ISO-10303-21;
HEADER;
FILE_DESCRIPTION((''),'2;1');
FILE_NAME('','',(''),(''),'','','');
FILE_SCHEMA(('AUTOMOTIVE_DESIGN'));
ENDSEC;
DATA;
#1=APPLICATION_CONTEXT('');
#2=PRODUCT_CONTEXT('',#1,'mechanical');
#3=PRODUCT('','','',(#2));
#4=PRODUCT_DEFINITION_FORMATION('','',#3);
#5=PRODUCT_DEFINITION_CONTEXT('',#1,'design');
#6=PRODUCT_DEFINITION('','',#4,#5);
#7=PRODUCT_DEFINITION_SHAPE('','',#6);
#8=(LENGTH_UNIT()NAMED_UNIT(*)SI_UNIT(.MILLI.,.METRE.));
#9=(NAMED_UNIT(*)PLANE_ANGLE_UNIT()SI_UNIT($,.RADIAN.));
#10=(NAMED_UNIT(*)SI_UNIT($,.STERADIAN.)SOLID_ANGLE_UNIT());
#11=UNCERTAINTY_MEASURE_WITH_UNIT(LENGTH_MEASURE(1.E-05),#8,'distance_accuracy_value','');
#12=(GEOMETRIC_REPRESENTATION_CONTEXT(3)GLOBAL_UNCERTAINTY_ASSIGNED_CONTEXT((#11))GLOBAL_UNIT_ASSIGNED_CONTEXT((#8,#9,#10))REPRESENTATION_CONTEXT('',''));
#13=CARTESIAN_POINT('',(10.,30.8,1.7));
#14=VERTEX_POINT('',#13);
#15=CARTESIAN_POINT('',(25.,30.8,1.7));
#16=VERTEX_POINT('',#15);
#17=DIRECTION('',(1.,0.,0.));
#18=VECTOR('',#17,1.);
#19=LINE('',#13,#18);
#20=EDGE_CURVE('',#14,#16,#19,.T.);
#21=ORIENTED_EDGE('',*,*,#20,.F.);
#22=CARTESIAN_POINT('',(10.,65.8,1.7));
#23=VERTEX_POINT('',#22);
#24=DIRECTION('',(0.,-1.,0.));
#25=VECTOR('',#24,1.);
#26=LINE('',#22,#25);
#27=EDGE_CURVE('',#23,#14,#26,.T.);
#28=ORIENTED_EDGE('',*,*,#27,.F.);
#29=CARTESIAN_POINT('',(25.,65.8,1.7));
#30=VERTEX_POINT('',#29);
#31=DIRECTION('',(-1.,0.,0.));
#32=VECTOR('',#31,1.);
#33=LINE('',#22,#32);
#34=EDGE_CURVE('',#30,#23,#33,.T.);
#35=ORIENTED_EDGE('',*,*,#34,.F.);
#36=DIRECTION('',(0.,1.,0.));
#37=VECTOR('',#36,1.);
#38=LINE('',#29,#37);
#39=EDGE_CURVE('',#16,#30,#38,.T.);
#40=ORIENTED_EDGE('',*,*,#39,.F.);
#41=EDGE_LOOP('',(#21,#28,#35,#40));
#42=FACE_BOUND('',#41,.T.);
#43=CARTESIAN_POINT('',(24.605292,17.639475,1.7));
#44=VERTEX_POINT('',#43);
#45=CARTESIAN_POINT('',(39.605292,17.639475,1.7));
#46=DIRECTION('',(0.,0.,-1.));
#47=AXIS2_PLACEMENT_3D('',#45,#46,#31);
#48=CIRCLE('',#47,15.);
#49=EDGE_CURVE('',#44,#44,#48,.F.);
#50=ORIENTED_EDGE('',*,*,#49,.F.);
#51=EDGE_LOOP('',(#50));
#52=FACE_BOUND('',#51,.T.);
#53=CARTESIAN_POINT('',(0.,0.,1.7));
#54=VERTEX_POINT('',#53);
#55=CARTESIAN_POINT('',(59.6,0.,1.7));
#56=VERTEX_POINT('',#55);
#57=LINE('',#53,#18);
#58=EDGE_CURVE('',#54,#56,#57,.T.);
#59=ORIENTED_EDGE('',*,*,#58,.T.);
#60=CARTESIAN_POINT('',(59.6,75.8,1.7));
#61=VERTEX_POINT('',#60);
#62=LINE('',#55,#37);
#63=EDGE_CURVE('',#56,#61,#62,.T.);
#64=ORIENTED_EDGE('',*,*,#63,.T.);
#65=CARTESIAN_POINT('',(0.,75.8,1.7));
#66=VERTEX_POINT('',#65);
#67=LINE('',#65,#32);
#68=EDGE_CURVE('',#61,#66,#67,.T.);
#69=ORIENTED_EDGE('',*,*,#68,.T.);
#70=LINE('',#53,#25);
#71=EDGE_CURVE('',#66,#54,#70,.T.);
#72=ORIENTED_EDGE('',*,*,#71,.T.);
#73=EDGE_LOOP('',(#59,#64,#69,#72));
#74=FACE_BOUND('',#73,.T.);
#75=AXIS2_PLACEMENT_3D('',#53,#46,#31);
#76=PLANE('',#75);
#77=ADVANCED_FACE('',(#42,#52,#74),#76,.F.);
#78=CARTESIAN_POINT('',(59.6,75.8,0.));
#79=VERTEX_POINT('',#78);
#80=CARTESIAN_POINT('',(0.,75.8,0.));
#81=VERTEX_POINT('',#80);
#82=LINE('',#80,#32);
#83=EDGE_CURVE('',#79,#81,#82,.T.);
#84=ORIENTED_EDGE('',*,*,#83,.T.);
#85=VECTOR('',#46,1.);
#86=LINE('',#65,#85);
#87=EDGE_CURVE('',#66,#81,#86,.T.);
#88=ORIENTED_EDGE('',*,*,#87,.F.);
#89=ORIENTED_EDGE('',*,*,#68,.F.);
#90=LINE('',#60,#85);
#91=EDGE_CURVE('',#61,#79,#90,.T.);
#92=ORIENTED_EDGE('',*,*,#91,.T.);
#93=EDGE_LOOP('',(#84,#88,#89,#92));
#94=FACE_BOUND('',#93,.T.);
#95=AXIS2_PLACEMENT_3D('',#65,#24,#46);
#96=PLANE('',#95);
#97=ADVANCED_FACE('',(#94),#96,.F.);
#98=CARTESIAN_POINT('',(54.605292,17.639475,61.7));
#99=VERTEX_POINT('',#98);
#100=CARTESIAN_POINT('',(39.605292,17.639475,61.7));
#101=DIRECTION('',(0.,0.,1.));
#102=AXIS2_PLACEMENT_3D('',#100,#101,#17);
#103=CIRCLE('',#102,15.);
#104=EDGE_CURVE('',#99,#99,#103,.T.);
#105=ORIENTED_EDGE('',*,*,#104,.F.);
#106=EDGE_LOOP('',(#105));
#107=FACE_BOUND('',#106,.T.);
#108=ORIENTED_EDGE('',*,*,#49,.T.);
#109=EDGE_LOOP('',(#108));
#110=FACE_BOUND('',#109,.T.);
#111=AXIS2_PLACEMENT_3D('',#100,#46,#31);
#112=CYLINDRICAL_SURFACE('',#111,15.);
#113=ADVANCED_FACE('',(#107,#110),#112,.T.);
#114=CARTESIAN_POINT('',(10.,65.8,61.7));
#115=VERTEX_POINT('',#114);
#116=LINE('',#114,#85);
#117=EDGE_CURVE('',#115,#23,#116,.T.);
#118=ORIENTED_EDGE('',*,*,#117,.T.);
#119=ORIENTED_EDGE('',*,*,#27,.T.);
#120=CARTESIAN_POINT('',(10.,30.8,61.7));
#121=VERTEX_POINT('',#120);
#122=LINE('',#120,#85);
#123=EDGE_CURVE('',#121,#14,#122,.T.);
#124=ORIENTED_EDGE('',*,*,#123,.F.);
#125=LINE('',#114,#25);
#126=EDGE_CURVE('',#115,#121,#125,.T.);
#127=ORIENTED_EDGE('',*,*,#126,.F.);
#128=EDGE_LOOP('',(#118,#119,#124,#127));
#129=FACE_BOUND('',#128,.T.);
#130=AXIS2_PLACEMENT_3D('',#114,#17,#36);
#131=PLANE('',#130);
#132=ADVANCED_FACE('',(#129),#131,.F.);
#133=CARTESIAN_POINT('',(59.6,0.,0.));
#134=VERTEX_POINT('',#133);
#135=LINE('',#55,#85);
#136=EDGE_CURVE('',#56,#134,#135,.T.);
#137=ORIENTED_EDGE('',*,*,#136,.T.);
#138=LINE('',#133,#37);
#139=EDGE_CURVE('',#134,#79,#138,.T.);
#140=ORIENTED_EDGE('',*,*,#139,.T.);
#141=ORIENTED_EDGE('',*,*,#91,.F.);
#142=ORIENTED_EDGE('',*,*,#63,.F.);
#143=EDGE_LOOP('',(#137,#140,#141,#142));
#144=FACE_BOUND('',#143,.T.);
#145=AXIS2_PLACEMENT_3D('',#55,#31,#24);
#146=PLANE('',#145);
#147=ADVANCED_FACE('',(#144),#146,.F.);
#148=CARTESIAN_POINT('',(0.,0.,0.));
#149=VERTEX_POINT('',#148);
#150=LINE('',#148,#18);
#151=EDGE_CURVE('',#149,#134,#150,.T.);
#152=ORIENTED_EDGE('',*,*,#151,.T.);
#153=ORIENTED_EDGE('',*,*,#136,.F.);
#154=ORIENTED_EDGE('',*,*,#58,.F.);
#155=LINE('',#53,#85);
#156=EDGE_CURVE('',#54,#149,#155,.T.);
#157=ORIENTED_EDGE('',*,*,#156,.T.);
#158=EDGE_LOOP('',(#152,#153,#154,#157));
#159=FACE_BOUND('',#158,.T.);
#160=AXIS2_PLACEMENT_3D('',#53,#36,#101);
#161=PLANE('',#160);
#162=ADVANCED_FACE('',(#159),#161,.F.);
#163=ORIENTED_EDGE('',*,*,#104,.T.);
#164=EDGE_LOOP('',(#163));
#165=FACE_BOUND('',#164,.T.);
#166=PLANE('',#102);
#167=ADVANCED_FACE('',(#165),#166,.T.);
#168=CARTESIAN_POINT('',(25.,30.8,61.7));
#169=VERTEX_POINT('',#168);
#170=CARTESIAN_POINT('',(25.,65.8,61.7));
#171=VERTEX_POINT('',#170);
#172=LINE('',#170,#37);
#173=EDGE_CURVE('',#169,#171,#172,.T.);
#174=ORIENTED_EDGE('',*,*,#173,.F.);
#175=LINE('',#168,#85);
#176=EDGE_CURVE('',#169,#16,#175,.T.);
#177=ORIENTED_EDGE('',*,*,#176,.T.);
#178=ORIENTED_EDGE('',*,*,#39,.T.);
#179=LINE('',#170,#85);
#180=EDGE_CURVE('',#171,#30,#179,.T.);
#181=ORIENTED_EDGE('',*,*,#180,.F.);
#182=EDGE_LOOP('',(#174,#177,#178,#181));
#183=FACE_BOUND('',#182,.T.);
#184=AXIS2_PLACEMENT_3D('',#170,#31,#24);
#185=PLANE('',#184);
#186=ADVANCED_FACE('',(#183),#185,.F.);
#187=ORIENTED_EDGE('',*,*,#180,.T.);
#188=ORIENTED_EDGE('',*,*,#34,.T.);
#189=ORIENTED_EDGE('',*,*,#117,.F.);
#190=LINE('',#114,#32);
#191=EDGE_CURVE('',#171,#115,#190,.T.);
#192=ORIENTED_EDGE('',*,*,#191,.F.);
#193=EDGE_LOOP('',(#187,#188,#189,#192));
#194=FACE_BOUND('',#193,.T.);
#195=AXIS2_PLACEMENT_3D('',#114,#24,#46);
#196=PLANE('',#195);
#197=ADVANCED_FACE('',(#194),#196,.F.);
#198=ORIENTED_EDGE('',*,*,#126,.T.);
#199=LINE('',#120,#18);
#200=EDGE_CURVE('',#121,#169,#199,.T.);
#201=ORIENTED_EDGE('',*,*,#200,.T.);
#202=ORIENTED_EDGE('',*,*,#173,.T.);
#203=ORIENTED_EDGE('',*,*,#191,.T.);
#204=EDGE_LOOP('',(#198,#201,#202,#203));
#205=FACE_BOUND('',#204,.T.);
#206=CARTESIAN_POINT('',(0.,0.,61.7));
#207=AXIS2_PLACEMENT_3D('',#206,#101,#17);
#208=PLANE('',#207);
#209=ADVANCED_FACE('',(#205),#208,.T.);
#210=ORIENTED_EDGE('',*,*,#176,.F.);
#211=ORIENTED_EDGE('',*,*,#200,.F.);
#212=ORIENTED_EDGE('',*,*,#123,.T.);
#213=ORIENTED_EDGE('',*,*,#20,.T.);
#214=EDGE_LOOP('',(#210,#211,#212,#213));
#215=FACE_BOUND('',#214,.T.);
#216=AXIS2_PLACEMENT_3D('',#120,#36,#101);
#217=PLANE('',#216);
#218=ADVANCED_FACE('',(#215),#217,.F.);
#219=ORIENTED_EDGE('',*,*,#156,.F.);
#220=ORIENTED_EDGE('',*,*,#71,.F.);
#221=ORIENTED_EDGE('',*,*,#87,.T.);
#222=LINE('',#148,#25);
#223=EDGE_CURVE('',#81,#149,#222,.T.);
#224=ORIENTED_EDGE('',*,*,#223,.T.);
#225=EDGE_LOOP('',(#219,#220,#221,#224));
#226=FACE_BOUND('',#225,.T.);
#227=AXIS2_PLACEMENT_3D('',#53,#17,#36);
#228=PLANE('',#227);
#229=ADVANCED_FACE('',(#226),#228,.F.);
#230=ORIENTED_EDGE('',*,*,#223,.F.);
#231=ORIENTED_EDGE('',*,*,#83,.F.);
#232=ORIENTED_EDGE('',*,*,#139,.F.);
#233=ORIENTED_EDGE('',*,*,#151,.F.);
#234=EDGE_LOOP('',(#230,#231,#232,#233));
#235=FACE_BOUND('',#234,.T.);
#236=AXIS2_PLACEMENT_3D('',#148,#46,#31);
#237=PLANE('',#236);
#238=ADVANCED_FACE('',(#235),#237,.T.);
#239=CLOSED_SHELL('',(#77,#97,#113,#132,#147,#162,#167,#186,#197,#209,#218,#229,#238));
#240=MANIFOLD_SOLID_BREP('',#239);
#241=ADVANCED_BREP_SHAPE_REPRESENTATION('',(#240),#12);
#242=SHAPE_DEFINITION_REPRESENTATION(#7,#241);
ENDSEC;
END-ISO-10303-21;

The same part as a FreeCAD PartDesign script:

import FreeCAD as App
import Part
import Sketcher

V = App.Vector
Q = App.Units.Quantity

doc = App.newDocument("Part")
params = doc.addObject("Spreadsheet::Sheet", "Params")
for row, (alias, value) in enumerate([
    ("sketch1_width", "59.6 mm"),
    ("sketch1_height", "75.8 mm"),
    ("pad1_length", "1.7 mm"),
    ("sketch2_width", "15 mm"),
    ("sketch2_height", "35 mm"),
    ("pad2_length", "60 mm"),
    ("sketch3_diameter", "30 mm"),
    ("pad3_length", "60 mm"),
], start=1):
    params.set(f"A{row}", alias)
    params.set(f"B{row}", "=" + value)
    params.setAlias(f"B{row}", alias)

body = doc.addObject("PartDesign::Body", "Body")

sketch1 = body.newObject("Sketcher::SketchObject", "Sketch")
sketch1.AttachmentSupport = (doc.getObject("XY_Plane"), [""])
sketch1.MapMode = "FlatFace"
sketch1.addGeometry(Part.LineSegment(V(0, 76, 0), V(0, 0, 0)), False)
sketch1.addGeometry(Part.LineSegment(V(0, 0, 0), V(60, 0, 0)), False)
sketch1.addGeometry(Part.LineSegment(V(60, 0, 0), V(60, 76, 0)), False)
sketch1.addGeometry(Part.LineSegment(V(60, 76, 0), V(0, 76, 0)), False)
sketch1.addConstraint(Sketcher.Constraint("Coincident", 0, 2, 1, 1))
sketch1.addConstraint(Sketcher.Constraint("Coincident", 1, 2, 2, 1))
sketch1.addConstraint(Sketcher.Constraint("Coincident", 2, 2, 3, 1))
sketch1.addConstraint(Sketcher.Constraint("Coincident", 3, 2, 0, 1))
sketch1.addConstraint(Sketcher.Constraint("Vertical", 0))
sketch1.addConstraint(Sketcher.Constraint("Horizontal", 1))
sketch1.addConstraint(Sketcher.Constraint("Vertical", 2))
sketch1.addConstraint(Sketcher.Constraint("Horizontal", 3))
sketch1.addConstraint(Sketcher.Constraint("Coincident", 0, 2, -1, 1))
sketch1.addConstraint(Sketcher.Constraint("DistanceX", 1, 1, 1, 2, Q("59.6 mm")))
sketch1.addConstraint(Sketcher.Constraint("DistanceY", 0, 2, 0, 1, Q("75.8 mm")))
sketch1.setExpression("Constraints[9]", "Params.sketch1_width")
sketch1.setExpression("Constraints[10]", "Params.sketch1_height")
pad1 = body.newObject("PartDesign::Pad", "Pad")
pad1.Profile = sketch1
pad1.setExpression("Length", "Params.pad1_length")

sketch2 = body.newObject("Sketcher::SketchObject", "Sketch001")
sketch2.AttachmentSupport = (doc.getObject("XY_Plane"), [""])
sketch2.MapMode = "FlatFace"
sketch2.AttachmentOffset = App.Placement(V(0, 0, 1.7), App.Rotation())
sketch2.addGeometry(Part.LineSegment(V(10, 66, 0), V(10, 31, 0)), False)
sketch2.addGeometry(Part.LineSegment(V(10, 31, 0), V(25, 31, 0)), False)
sketch2.addGeometry(Part.LineSegment(V(25, 31, 0), V(25, 66, 0)), False)
sketch2.addGeometry(Part.LineSegment(V(25, 66, 0), V(10, 66, 0)), False)
sketch2.addConstraint(Sketcher.Constraint("Coincident", 0, 2, 1, 1))
sketch2.addConstraint(Sketcher.Constraint("Coincident", 1, 2, 2, 1))
sketch2.addConstraint(Sketcher.Constraint("Coincident", 2, 2, 3, 1))
sketch2.addConstraint(Sketcher.Constraint("Coincident", 3, 2, 0, 1))
sketch2.addConstraint(Sketcher.Constraint("Vertical", 0))
sketch2.addConstraint(Sketcher.Constraint("Horizontal", 1))
sketch2.addConstraint(Sketcher.Constraint("Vertical", 2))
sketch2.addConstraint(Sketcher.Constraint("Horizontal", 3))
sketch2.addConstraint(Sketcher.Constraint("DistanceX", 1, 1, 1, 2, Q("15 mm")))
sketch2.addConstraint(Sketcher.Constraint("DistanceY", 0, 2, 0, 1, Q("35 mm")))
sketch2.addConstraint(Sketcher.Constraint("DistanceX", -1, 1, 0, 2, Q("10 mm")))
sketch2.addConstraint(Sketcher.Constraint("DistanceY", -1, 1, 0, 2, Q("30.8 mm")))
sketch2.setExpression("Constraints[8]", "Params.sketch2_width")
sketch2.setExpression("Constraints[9]", "Params.sketch2_height")
pad2 = body.newObject("PartDesign::Pad", "Pad001")
pad2.Profile = sketch2
pad2.setExpression("Length", "Params.pad2_length")

sketch3 = body.newObject("Sketcher::SketchObject", "Sketch002")
sketch3.AttachmentSupport = (doc.getObject("XY_Plane"), [""])
sketch3.MapMode = "FlatFace"
sketch3.AttachmentOffset = App.Placement(V(0, 0, 1.7), App.Rotation())
sketch3.addGeometry(Part.Circle(V(40, 18, 0), V(0, 0, 1), 15), False)
sketch3.addConstraint(Sketcher.Constraint("Diameter", 0, Q("30 mm")))
sketch3.addConstraint(Sketcher.Constraint("DistanceX", -1, 1, 0, 3, Q("39.605292 mm")))
sketch3.addConstraint(Sketcher.Constraint("DistanceY", -1, 1, 0, 3, Q("17.639475 mm")))
sketch3.setExpression("Constraints[0]", "Params.sketch3_diameter")
pad3 = body.newObject("PartDesign::Pad", "Pad002")
pad3.Profile = sketch3
pad3.setExpression("Length", "Params.pad3_length")

doc.recompute()
